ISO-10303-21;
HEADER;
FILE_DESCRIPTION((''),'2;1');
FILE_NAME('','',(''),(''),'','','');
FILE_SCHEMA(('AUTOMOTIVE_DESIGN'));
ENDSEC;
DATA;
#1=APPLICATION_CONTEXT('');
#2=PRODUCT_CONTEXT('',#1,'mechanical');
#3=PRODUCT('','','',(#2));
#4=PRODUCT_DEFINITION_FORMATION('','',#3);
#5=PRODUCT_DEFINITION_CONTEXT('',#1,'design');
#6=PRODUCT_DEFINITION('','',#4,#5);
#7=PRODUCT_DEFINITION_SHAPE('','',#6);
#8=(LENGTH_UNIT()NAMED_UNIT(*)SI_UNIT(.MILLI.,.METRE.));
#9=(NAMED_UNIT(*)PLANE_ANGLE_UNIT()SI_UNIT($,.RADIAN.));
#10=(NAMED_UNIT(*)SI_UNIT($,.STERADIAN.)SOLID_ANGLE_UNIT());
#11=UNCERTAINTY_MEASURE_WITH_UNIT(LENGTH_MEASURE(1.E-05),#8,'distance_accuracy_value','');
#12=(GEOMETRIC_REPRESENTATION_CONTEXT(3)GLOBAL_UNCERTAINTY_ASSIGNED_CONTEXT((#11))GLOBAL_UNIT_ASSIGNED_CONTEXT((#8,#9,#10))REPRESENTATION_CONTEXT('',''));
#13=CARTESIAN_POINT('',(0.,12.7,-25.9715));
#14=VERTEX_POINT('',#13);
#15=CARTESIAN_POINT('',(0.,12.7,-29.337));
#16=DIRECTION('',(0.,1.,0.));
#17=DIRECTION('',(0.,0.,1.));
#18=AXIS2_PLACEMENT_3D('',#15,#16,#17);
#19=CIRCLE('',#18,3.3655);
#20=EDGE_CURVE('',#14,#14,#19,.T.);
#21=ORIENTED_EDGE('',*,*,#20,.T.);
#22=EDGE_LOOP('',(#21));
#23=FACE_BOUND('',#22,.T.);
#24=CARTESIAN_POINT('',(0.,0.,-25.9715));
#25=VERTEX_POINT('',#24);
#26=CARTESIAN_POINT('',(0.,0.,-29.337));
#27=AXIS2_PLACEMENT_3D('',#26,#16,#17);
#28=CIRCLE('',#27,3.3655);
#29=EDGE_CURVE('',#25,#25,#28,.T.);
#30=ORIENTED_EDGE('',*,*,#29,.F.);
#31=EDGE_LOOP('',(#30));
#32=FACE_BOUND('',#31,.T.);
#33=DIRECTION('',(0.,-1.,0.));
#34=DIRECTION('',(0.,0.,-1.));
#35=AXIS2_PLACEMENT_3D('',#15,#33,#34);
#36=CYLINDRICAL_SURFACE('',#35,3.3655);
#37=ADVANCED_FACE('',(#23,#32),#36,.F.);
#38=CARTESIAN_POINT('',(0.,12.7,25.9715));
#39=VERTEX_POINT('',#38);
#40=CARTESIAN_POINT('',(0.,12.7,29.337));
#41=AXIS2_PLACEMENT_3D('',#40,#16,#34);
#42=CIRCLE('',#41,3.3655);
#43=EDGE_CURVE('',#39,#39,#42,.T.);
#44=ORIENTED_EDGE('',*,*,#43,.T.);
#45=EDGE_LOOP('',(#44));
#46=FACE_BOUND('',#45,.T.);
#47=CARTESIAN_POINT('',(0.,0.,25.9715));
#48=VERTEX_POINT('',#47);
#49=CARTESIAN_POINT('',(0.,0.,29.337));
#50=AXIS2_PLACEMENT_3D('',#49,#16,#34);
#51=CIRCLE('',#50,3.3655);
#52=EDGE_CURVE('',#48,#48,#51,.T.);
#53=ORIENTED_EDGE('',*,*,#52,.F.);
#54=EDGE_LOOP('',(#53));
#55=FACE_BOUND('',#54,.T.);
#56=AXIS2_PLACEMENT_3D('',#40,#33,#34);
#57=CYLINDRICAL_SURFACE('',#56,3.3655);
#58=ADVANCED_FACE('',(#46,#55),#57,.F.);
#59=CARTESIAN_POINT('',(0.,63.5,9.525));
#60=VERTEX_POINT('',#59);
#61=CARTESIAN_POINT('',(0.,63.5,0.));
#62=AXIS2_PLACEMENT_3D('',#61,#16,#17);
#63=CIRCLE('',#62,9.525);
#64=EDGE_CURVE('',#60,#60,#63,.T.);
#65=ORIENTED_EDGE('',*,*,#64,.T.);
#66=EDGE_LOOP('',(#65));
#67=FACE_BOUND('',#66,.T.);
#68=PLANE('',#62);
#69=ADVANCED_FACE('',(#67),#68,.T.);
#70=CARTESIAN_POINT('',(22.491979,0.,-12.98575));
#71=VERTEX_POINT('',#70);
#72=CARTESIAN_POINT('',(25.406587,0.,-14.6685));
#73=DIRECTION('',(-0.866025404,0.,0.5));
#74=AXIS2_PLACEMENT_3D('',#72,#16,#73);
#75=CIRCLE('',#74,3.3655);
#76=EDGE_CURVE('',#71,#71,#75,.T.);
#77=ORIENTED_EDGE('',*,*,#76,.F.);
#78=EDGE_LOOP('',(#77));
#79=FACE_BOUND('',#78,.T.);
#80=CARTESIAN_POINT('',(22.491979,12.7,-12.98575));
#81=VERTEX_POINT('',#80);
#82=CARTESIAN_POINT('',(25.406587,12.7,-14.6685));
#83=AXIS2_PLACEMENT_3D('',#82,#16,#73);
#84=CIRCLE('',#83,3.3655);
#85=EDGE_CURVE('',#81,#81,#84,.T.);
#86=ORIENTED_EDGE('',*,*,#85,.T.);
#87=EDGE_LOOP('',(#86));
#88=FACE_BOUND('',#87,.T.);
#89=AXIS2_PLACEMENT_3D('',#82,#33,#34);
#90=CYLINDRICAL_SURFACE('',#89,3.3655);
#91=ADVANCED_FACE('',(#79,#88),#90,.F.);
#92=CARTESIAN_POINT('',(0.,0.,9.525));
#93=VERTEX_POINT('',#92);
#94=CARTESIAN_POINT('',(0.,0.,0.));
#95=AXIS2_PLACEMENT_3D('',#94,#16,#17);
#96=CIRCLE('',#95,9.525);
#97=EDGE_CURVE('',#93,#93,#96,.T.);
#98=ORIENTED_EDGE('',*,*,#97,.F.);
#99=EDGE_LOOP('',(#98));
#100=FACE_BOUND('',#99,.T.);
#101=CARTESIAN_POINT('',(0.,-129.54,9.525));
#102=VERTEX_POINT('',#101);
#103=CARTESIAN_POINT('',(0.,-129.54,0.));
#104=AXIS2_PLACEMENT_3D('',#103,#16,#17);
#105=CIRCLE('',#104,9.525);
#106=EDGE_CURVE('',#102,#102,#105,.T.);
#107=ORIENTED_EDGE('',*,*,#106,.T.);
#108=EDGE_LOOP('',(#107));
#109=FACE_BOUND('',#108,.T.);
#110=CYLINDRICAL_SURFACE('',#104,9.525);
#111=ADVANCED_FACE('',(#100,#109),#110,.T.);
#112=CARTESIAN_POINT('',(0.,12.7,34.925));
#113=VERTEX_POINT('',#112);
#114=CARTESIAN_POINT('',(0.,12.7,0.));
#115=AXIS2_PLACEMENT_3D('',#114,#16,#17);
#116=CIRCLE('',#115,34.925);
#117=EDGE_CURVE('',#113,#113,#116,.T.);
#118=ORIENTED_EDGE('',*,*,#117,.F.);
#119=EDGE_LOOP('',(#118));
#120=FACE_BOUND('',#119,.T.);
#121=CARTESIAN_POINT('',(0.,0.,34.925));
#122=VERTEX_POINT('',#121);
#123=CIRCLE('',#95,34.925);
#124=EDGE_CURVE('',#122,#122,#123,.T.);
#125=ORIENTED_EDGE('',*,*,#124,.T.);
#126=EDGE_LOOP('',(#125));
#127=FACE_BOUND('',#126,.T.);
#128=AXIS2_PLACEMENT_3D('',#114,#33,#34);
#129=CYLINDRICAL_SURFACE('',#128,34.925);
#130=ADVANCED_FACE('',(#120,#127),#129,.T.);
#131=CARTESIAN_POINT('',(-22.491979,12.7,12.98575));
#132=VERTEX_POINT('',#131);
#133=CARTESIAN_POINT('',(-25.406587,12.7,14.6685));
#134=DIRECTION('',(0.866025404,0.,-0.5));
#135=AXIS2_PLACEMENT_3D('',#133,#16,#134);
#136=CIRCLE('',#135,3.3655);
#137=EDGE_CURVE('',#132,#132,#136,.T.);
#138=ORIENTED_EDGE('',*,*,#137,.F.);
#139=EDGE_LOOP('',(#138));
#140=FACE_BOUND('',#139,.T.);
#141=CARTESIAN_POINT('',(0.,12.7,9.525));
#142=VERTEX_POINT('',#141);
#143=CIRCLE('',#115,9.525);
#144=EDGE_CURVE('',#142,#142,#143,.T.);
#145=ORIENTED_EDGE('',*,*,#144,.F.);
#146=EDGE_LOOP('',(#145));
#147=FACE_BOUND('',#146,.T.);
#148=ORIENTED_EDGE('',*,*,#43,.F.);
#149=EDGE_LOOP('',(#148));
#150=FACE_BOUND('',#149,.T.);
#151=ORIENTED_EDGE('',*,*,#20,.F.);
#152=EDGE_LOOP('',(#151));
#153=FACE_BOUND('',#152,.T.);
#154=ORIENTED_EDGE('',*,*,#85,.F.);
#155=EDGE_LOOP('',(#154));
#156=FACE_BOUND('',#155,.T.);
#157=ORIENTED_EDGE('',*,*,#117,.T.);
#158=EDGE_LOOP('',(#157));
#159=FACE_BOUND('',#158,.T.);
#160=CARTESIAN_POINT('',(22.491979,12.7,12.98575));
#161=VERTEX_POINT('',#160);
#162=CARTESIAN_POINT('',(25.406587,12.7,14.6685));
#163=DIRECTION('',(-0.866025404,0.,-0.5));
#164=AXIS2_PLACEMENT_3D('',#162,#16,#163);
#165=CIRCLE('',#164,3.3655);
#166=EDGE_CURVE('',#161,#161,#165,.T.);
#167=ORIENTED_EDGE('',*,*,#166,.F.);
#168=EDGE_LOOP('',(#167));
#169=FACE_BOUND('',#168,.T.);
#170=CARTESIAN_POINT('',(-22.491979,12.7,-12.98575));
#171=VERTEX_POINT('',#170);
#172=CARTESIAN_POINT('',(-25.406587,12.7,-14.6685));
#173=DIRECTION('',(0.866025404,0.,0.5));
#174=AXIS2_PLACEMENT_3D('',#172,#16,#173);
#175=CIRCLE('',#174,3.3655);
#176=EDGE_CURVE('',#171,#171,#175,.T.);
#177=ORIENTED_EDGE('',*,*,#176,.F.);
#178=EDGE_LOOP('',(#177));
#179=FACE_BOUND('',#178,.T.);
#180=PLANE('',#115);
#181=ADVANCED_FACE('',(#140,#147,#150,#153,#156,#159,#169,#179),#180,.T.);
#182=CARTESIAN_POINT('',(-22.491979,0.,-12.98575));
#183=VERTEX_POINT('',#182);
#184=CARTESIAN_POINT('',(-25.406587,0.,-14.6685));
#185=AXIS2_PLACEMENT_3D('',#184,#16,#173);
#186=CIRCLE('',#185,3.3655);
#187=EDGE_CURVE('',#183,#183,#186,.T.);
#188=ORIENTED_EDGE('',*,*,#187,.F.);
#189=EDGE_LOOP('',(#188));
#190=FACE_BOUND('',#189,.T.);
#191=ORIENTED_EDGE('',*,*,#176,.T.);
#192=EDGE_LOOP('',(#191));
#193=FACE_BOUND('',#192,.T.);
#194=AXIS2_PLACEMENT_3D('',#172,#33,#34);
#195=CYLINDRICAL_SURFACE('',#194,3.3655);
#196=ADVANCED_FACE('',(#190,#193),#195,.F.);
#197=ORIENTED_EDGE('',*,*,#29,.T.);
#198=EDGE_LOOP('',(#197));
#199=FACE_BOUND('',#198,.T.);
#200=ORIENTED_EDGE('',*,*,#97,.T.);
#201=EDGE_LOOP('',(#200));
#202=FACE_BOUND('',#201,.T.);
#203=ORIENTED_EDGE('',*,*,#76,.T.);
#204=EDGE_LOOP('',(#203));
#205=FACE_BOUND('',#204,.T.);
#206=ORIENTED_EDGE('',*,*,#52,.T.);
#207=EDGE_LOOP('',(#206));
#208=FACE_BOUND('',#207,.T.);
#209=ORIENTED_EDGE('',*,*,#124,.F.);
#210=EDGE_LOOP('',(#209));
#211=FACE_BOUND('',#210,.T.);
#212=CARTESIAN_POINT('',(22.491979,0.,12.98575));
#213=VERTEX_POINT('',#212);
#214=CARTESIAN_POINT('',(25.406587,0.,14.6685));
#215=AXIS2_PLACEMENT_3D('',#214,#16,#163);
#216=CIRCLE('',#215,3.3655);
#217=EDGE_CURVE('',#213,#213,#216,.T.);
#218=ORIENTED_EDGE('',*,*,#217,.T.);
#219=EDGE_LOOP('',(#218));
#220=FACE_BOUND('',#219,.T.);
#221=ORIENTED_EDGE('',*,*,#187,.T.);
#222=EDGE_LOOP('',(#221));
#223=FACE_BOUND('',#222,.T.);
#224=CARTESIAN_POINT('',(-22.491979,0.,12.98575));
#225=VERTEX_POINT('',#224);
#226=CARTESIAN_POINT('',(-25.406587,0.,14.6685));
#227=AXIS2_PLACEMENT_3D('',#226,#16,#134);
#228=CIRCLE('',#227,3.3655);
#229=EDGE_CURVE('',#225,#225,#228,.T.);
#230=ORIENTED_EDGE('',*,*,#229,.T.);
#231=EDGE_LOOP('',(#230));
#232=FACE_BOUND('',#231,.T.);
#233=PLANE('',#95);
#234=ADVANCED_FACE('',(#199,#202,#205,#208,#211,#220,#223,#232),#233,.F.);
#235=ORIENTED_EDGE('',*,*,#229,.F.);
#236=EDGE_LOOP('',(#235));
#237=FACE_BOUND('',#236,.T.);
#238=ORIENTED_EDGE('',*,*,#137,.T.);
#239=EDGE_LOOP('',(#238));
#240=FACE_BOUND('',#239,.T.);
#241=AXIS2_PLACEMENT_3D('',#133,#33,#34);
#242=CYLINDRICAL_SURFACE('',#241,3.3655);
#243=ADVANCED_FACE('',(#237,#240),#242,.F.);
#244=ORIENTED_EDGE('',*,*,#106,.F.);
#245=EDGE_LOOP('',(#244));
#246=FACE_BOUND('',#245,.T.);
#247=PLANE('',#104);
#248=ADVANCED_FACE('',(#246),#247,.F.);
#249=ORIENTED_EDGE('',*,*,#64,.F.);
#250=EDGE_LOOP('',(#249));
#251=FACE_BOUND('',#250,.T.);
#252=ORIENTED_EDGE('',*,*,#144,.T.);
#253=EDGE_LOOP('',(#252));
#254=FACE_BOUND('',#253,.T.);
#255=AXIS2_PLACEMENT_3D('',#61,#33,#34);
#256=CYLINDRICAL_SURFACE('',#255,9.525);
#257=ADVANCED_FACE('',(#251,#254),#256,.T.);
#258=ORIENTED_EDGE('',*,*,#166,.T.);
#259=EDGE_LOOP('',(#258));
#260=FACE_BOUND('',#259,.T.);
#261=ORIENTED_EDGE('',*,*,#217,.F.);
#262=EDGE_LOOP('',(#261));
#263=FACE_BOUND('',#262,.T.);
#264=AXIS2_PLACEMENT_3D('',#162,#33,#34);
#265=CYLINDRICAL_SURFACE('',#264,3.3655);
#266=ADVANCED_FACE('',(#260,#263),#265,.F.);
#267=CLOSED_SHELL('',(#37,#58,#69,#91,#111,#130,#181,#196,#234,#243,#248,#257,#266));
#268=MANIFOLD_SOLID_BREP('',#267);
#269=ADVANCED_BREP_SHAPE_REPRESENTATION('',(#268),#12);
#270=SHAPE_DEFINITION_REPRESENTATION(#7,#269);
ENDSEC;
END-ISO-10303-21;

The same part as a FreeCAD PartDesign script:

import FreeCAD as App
import Part
import Sketcher

V = App.Vector
Q = App.Units.Quantity

doc = App.newDocument("Part")
body = doc.addObject("PartDesign::Body", "Body")

# Sketch on XZ plane
sketch1 = body.newObject("Sketcher::SketchObject", "Sketch")
sketch1.AttachmentSupport = (doc.getObject("XZ_Plane"), [""])
sketch1.MapMode = "FlatFace"
sketch1.addGeometry(Part.Circle(V(0, 0, 0), V(0, 0, 1), 34.925), False)
sketch1.addConstraint([
    Sketcher.Constraint("Coincident", 0, 3, -1, 1),
    Sketcher.Constraint("Diameter", 0, Q("2.75 in")),
])
pad1 = body.newObject("PartDesign::Pad", "Pad")
pad1.Profile = sketch1
pad1.Length = Q("0.5 in")
pad1.Reversed = True

# Sketch on XZ plane
sketch2 = body.newObject("Sketcher::SketchObject", "Sketch001")
sketch2.AttachmentSupport = (doc.getObject("XZ_Plane"), [""])
sketch2.MapMode = "FlatFace"
sketch2.addGeometry(Part.Circle(V(0, -29.337, 0), V(0, 0, 1), 3.3655), False)
sketch2.addConstraint([
    Sketcher.Constraint("PointOnObject", 0, 3, -2),
    Sketcher.Constraint("Diameter", 0, Q("0.265 in")),
    Sketcher.Constraint("DistanceY", 0, 3, -1, 1, Q("1.155 in")),
])
pocket1 = body.newObject("PartDesign::Pocket", "Pocket")
pocket1.Profile = sketch2
pocket1.Length = Q("0.5 in")
doc.recompute()

polarpattern = body.newObject("PartDesign::PolarPattern", "PolarPattern")
polarpattern.Originals = [pocket1]
polarpattern.Axis = (doc.getObject("Y_Axis"), [""])
polarpattern.Angle = 360
polarpattern.Occurrences = 6
body.Tip = polarpattern

# Sketch on XZ plane
sketch3 = body.newObject("Sketcher::SketchObject", "Sketch002")
sketch3.AttachmentSupport = (doc.getObject("XZ_Plane"), [""])
sketch3.MapMode = "FlatFace"
sketch3.addGeometry(Part.Circle(V(0, 0, 0), V(0, 0, 1), 9.525), False)
sketch3.addConstraint([
    Sketcher.Constraint("Coincident", 0, 3, -1, 1),
    Sketcher.Constraint("Diameter", 0, Q("0.75 in")),
])
pad2 = body.newObject("PartDesign::Pad", "Pad001")
pad2.Profile = sketch3
pad2.Length = Q("5.1 in")

# Sketch on XZ plane
sketch4 = body.newObject("Sketcher::SketchObject", "Sketch003")
sketch4.AttachmentSupport = (doc.getObject("XZ_Plane"), [""])
sketch4.MapMode = "FlatFace"
sketch4.AttachmentOffset = App.Placement(V(0, 0, -2.5 * 25.4), App.Rotation())
sketch4.addGeometry(Part.Circle(V(0, 0, 0), V(0, 0, 1), 9.525), False)
sketch4.addConstraint([
    Sketcher.Constraint("Coincident", 0, 3, -1, 1),
    Sketcher.Constraint("Diameter", 0, Q("0.75 in")),
])
pad3 = body.newObject("PartDesign::Pad", "Pad002")
pad3.Profile = sketch4
pad3.Length = Q("2 in")

doc.recompute()
